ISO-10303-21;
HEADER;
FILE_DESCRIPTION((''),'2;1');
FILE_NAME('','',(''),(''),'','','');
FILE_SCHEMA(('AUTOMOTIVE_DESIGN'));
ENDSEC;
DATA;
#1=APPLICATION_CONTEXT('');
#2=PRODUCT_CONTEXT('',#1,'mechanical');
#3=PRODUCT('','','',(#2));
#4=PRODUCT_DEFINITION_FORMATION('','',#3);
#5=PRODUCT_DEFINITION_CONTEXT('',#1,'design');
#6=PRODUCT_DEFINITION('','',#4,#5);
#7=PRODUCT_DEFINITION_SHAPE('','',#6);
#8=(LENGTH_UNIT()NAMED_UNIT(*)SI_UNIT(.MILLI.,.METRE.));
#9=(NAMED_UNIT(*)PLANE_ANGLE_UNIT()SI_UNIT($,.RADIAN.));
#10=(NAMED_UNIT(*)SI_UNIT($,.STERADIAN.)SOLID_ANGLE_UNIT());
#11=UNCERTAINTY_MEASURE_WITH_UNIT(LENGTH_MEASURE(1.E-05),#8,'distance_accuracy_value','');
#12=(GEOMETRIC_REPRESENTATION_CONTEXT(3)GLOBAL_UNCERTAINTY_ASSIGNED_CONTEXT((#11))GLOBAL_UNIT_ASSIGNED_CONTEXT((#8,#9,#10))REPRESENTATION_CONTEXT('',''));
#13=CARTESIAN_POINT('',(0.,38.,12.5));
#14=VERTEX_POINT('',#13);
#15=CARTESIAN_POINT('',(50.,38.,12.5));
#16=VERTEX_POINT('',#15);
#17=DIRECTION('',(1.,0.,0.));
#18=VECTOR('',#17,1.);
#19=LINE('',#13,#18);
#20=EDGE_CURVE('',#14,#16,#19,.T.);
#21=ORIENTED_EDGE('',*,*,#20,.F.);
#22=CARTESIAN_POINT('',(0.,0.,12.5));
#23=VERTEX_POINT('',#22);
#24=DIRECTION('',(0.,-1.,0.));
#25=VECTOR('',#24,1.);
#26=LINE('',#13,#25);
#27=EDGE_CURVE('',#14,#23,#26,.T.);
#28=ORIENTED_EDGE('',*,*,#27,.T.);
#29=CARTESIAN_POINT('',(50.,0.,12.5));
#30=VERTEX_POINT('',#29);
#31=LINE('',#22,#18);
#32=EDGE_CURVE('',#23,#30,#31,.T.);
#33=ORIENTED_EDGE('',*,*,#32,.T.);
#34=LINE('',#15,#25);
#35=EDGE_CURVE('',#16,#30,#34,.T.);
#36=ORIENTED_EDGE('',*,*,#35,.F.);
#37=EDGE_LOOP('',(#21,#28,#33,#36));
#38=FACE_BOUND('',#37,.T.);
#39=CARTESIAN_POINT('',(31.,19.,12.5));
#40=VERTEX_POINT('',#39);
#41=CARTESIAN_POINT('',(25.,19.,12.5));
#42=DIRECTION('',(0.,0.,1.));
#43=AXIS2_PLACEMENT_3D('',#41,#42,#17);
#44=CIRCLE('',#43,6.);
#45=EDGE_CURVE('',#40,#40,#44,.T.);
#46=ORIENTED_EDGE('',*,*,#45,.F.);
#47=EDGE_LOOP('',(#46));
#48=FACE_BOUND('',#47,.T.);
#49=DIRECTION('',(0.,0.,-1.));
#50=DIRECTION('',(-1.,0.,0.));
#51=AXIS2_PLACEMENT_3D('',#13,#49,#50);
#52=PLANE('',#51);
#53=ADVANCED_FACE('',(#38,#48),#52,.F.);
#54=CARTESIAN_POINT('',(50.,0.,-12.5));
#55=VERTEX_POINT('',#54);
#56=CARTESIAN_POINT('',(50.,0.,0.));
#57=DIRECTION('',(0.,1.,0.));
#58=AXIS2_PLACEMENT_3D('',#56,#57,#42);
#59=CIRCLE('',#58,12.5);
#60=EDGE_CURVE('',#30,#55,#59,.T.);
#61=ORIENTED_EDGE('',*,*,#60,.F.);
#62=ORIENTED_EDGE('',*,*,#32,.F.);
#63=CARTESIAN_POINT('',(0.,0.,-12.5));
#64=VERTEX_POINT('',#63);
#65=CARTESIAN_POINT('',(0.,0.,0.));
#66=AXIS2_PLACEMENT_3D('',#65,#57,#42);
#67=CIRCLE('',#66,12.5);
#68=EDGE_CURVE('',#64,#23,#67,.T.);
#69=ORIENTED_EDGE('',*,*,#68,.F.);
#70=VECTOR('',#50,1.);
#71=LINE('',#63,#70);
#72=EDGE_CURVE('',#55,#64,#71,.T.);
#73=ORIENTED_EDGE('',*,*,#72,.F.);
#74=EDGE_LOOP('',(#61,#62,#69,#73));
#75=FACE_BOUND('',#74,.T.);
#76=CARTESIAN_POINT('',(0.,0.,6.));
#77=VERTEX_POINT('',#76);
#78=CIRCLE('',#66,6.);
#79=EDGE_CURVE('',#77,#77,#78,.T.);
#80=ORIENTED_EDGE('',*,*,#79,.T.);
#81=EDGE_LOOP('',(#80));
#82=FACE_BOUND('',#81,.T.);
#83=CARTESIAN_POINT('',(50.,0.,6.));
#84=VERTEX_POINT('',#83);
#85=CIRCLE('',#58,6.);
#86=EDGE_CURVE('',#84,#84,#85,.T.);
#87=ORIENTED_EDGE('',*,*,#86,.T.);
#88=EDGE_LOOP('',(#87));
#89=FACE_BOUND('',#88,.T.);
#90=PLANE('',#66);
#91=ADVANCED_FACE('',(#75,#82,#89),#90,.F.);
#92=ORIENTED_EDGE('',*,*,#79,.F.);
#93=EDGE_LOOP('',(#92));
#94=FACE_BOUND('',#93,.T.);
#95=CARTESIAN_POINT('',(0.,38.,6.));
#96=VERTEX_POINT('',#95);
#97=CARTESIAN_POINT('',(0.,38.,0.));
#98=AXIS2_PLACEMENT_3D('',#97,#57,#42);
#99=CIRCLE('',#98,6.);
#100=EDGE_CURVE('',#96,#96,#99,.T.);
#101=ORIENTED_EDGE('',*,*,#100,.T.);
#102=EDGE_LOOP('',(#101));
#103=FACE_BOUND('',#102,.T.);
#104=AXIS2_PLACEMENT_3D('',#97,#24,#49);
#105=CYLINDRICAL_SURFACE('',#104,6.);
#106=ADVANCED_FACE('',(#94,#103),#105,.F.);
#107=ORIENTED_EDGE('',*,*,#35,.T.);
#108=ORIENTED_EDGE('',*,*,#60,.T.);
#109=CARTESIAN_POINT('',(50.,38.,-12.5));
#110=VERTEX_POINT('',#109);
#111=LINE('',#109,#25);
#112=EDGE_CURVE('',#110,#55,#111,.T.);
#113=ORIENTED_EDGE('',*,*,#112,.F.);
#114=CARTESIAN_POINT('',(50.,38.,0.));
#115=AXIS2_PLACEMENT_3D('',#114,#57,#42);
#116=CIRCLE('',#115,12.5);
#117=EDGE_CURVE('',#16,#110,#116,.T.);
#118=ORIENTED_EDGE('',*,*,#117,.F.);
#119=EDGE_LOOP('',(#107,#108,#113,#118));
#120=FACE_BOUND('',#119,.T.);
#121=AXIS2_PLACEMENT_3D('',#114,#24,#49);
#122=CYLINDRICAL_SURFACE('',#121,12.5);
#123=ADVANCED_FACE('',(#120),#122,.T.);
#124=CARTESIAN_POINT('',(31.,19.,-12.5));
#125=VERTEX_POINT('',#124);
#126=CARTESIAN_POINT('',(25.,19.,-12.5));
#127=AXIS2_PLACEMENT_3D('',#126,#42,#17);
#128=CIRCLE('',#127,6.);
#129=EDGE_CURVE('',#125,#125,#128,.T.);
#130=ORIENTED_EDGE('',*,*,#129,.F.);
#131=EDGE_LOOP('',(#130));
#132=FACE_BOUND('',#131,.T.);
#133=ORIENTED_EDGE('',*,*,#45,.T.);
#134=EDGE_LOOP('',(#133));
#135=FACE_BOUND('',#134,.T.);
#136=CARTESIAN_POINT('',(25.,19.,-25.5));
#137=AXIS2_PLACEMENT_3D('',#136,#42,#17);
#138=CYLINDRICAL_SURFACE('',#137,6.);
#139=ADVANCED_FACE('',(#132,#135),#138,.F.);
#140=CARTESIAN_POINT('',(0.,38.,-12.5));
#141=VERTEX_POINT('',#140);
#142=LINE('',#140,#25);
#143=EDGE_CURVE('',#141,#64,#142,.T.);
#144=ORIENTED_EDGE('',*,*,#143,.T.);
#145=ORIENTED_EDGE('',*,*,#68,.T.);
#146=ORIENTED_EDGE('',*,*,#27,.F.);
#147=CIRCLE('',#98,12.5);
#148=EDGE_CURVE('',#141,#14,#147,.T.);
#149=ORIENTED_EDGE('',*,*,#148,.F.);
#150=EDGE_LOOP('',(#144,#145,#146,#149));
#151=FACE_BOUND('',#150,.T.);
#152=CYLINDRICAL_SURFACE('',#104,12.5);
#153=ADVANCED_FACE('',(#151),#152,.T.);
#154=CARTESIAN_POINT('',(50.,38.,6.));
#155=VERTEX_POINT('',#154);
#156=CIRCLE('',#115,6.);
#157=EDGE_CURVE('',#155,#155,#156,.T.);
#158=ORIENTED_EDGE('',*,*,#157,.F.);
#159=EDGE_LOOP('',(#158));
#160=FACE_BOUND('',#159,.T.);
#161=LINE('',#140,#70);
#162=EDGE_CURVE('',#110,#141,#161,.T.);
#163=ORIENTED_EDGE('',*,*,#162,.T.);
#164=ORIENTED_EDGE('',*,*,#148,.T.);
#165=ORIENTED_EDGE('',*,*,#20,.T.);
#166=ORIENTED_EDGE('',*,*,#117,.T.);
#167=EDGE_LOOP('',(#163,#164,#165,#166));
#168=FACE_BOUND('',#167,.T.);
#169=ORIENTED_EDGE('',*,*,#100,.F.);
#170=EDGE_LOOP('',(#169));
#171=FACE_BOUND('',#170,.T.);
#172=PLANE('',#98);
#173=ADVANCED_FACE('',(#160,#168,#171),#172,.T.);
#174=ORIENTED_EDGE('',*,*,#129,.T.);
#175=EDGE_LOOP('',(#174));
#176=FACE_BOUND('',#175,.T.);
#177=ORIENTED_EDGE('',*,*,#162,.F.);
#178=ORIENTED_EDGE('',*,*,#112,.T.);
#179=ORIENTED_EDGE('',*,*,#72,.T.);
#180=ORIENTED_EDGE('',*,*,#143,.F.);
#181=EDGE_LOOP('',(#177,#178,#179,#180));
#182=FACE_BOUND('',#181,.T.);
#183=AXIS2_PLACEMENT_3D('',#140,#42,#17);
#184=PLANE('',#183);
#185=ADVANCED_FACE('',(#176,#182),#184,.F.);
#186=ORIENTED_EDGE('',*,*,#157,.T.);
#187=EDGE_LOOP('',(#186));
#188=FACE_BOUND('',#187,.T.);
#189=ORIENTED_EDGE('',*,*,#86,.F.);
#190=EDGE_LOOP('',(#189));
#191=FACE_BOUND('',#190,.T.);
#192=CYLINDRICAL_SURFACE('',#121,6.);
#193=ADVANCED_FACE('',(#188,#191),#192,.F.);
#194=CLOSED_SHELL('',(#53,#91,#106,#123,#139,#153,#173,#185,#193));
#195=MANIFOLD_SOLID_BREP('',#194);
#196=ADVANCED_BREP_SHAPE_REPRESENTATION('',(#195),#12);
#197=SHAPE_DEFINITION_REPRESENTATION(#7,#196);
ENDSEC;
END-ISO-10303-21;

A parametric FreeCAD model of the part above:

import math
import FreeCAD as App
import Part
import Sketcher
from FreeCAD import Vector

doc = App.newDocument("Part")
params = doc.addObject("Spreadsheet::Sheet", "Params")
for row, (alias, value) in enumerate([
    ("sketch1_diameter", "12 mm"),
    ("sketch1_radius", "12.5 mm"),
    ("sketch1_width", "50 mm"),
    ("pad1_length", "38 mm"),
    ("sketch2_diameter", "12 mm"),
    ("pocket1_length", "38 mm"),
], start=1):
    params.set(f"A{row}", alias)
    params.set(f"B{row}", "=" + value)
    params.setAlias(f"B{row}", alias)

body = doc.addObject("PartDesign::Body", "Body")

# Sketch on XZ plane
sketch1 = body.newObject("Sketcher::SketchObject", "Sketch")
sketch1.AttachmentSupport = (doc.getObject("XZ_Plane"), [""])
sketch1.MapMode = "FlatFace"
sketch1.addGeometry([
    Part.LineSegment(Vector(50, -12, 0), Vector(0, -12, 0)),  # 0
    Part.ArcOfCircle(Part.Circle(Vector(0, 0, 0), Vector(0, 0, 1), 12), math.radians(90), math.radians(270)),  # 1
    Part.LineSegment(Vector(0, 12, 0), Vector(50, 12, 0)),  # 2
    Part.ArcOfCircle(Part.Circle(Vector(50, 0, 0), Vector(0, 0, 1), 12), math.radians(-90), math.radians(90)),  # 3
    Part.Circle(Vector(50, 0, 0), Vector(0, 0, 1), 6),  # 4
    Part.Circle(Vector(0, 0, 0), Vector(0, 0, 1), 6),  # 5
], False)
sketch1.addConstraint([
    Sketcher.Constraint("Tangent", 0, 2, 1, 2),
    Sketcher.Constraint("Tangent", 1, 1, 2, 1),
    Sketcher.Constraint("Tangent", 2, 2, 3, 2),
    Sketcher.Constraint("Tangent", 3, 1, 0, 1),
    Sketcher.Constraint("Horizontal", 0),
    Sketcher.Constraint("Horizontal", 2),
    Sketcher.Constraint("Coincident", 1, 3, -1, 1),
    Sketcher.Constraint("Coincident", 5, 3, -1, 1),
    Sketcher.Constraint("Coincident", 4, 3, 3, 3),
    Sketcher.Constraint("Equal", 4, 5),
    Sketcher.Constraint("Diameter", 4, 12.0),
    Sketcher.Constraint("Radius", 1, 12.5),
    Sketcher.Constraint("DistanceX", 0, 2, 0, 1, 50.0),
])
sketch1.setExpression("Constraints[10]", "Params.sketch1_diameter")
sketch1.setExpression("Constraints[11]", "Params.sketch1_radius")
sketch1.setExpression("Constraints[12]", "Params.sketch1_width")
pad1 = body.newObject("PartDesign::Pad", "Pad")
pad1.Profile = sketch1
pad1.setExpression("Length", "Params.pad1_length")
pad1.Reversed = True

# Sketch on XY plane
sketch2 = body.newObject("Sketcher::SketchObject", "Sketch001")
sketch2.AttachmentSupport = (doc.getObject("XY_Plane"), [""])
sketch2.MapMode = "FlatFace"
sketch2.AttachmentOffset = App.Placement(Vector(0, 0, 12.5), App.Rotation())
sketch2.addGeometry(Part.Circle(Vector(25, 19, 0), Vector(0, 0, 1), 6), False)
sketch2.addConstraint([
    Sketcher.Constraint("Diameter", 0, 12.0),
    Sketcher.Constraint("DistanceX", -1, 1, 0, 3, 25.0),
    Sketcher.Constraint("DistanceY", -1, 1, 0, 3, 19.0),
])
sketch2.setExpression("Constraints[0]", "Params.sketch2_diameter")
pocket1 = body.newObject("PartDesign::Pocket", "Pocket")
pocket1.Profile = sketch2
pocket1.setExpression("Length", "Params.pocket1_length")

doc.recompute()
